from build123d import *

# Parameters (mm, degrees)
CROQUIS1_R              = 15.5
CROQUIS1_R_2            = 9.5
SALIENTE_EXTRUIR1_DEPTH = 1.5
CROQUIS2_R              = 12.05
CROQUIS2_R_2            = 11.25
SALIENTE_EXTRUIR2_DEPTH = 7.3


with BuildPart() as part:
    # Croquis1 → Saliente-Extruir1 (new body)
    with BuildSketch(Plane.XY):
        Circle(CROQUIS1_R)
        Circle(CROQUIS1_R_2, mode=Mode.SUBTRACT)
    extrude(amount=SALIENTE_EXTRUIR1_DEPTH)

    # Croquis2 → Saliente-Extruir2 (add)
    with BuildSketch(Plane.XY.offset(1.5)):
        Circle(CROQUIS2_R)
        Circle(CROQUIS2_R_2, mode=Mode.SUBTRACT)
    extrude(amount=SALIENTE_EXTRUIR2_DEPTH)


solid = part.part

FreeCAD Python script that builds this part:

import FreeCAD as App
import Part
import Sketcher

V = App.Vector
Q = App.Units.Quantity

doc = App.newDocument("Part")
params = doc.addObject("Spreadsheet::Sheet", "Params")
for row, (alias, value) in enumerate([
    ("sketch1_diameter", "31 mm"),
    ("sketch1_diameter2", "19 mm"),
    ("pad1_length", "1.5 mm"),
    ("sketch2_diameter", "24.1 mm"),
    ("sketch2_diameter2", "22.5 mm"),
    ("pad2_length", "7.3 mm"),
], start=1):
    params.set(f"A{row}", alias)
    params.set(f"B{row}", "=" + value)
    params.setAlias(f"B{row}", alias)

body = doc.addObject("PartDesign::Body", "Body")

# Sketch on XY plane
sketch1 = body.newObject("Sketcher::SketchObject", "Sketch")
sketch1.AttachmentSupport = (doc.getObject("XY_Plane"), [""])
sketch1.MapMode = "FlatFace"
sketch1.addGeometry([
    Part.Circle(V(0, 0, 0), V(0, 0, 1), 16),
    Part.Circle(V(0, 0, 0), V(0, 0, 1), 10),
], False)
sketch1.addConstraint([
    Sketcher.Constraint("Coincident", 0, 3, -1, 1),
    Sketcher.Constraint("Coincident", 1, 3, -1, 1),
    Sketcher.Constraint("Diameter", 0, Q("31 mm")),
    Sketcher.Constraint("Diameter", 1, Q("19 mm")),
])
sketch1.setExpression("Constraints[2]", "Params.sketch1_diameter")
sketch1.setExpression("Constraints[3]", "Params.sketch1_diameter2")
pad1 = body.newObject("PartDesign::Pad", "Pad")
pad1.Profile = sketch1
pad1.setExpression("Length", "Params.pad1_length")

# Sketch on XY plane
sketch2 = body.newObject("Sketcher::SketchObject", "Sketch001")
sketch2.AttachmentSupport = (doc.getObject("XY_Plane"), [""])
sketch2.MapMode = "FlatFace"
sketch2.AttachmentOffset = App.Placement(V(0, 0, 1.5), App.Rotation())
sketch2.addGeometry([
    Part.Circle(V(0, 0, 0), V(0, 0, 1), 12),
    Part.Circle(V(0, 0, 0), V(0, 0, 1), 11),
], False)
sketch2.addConstraint([
    Sketcher.Constraint("Coincident", 0, 3, -1, 1),
    Sketcher.Constraint("Coincident", 1, 3, -1, 1),
    Sketcher.Constraint("Diameter", 0, Q("24.1 mm")),
    Sketcher.Constraint("Diameter", 1, Q("22.5 mm")),
])
sketch2.setExpression("Constraints[2]", "Params.sketch2_diameter")
sketch2.setExpression("Constraints[3]", "Params.sketch2_diameter2")
pad2 = body.newObject("PartDesign::Pad", "Pad001")
pad2.Profile = sketch2
pad2.setExpression("Length", "Params.pad2_length")

doc.recompute()
